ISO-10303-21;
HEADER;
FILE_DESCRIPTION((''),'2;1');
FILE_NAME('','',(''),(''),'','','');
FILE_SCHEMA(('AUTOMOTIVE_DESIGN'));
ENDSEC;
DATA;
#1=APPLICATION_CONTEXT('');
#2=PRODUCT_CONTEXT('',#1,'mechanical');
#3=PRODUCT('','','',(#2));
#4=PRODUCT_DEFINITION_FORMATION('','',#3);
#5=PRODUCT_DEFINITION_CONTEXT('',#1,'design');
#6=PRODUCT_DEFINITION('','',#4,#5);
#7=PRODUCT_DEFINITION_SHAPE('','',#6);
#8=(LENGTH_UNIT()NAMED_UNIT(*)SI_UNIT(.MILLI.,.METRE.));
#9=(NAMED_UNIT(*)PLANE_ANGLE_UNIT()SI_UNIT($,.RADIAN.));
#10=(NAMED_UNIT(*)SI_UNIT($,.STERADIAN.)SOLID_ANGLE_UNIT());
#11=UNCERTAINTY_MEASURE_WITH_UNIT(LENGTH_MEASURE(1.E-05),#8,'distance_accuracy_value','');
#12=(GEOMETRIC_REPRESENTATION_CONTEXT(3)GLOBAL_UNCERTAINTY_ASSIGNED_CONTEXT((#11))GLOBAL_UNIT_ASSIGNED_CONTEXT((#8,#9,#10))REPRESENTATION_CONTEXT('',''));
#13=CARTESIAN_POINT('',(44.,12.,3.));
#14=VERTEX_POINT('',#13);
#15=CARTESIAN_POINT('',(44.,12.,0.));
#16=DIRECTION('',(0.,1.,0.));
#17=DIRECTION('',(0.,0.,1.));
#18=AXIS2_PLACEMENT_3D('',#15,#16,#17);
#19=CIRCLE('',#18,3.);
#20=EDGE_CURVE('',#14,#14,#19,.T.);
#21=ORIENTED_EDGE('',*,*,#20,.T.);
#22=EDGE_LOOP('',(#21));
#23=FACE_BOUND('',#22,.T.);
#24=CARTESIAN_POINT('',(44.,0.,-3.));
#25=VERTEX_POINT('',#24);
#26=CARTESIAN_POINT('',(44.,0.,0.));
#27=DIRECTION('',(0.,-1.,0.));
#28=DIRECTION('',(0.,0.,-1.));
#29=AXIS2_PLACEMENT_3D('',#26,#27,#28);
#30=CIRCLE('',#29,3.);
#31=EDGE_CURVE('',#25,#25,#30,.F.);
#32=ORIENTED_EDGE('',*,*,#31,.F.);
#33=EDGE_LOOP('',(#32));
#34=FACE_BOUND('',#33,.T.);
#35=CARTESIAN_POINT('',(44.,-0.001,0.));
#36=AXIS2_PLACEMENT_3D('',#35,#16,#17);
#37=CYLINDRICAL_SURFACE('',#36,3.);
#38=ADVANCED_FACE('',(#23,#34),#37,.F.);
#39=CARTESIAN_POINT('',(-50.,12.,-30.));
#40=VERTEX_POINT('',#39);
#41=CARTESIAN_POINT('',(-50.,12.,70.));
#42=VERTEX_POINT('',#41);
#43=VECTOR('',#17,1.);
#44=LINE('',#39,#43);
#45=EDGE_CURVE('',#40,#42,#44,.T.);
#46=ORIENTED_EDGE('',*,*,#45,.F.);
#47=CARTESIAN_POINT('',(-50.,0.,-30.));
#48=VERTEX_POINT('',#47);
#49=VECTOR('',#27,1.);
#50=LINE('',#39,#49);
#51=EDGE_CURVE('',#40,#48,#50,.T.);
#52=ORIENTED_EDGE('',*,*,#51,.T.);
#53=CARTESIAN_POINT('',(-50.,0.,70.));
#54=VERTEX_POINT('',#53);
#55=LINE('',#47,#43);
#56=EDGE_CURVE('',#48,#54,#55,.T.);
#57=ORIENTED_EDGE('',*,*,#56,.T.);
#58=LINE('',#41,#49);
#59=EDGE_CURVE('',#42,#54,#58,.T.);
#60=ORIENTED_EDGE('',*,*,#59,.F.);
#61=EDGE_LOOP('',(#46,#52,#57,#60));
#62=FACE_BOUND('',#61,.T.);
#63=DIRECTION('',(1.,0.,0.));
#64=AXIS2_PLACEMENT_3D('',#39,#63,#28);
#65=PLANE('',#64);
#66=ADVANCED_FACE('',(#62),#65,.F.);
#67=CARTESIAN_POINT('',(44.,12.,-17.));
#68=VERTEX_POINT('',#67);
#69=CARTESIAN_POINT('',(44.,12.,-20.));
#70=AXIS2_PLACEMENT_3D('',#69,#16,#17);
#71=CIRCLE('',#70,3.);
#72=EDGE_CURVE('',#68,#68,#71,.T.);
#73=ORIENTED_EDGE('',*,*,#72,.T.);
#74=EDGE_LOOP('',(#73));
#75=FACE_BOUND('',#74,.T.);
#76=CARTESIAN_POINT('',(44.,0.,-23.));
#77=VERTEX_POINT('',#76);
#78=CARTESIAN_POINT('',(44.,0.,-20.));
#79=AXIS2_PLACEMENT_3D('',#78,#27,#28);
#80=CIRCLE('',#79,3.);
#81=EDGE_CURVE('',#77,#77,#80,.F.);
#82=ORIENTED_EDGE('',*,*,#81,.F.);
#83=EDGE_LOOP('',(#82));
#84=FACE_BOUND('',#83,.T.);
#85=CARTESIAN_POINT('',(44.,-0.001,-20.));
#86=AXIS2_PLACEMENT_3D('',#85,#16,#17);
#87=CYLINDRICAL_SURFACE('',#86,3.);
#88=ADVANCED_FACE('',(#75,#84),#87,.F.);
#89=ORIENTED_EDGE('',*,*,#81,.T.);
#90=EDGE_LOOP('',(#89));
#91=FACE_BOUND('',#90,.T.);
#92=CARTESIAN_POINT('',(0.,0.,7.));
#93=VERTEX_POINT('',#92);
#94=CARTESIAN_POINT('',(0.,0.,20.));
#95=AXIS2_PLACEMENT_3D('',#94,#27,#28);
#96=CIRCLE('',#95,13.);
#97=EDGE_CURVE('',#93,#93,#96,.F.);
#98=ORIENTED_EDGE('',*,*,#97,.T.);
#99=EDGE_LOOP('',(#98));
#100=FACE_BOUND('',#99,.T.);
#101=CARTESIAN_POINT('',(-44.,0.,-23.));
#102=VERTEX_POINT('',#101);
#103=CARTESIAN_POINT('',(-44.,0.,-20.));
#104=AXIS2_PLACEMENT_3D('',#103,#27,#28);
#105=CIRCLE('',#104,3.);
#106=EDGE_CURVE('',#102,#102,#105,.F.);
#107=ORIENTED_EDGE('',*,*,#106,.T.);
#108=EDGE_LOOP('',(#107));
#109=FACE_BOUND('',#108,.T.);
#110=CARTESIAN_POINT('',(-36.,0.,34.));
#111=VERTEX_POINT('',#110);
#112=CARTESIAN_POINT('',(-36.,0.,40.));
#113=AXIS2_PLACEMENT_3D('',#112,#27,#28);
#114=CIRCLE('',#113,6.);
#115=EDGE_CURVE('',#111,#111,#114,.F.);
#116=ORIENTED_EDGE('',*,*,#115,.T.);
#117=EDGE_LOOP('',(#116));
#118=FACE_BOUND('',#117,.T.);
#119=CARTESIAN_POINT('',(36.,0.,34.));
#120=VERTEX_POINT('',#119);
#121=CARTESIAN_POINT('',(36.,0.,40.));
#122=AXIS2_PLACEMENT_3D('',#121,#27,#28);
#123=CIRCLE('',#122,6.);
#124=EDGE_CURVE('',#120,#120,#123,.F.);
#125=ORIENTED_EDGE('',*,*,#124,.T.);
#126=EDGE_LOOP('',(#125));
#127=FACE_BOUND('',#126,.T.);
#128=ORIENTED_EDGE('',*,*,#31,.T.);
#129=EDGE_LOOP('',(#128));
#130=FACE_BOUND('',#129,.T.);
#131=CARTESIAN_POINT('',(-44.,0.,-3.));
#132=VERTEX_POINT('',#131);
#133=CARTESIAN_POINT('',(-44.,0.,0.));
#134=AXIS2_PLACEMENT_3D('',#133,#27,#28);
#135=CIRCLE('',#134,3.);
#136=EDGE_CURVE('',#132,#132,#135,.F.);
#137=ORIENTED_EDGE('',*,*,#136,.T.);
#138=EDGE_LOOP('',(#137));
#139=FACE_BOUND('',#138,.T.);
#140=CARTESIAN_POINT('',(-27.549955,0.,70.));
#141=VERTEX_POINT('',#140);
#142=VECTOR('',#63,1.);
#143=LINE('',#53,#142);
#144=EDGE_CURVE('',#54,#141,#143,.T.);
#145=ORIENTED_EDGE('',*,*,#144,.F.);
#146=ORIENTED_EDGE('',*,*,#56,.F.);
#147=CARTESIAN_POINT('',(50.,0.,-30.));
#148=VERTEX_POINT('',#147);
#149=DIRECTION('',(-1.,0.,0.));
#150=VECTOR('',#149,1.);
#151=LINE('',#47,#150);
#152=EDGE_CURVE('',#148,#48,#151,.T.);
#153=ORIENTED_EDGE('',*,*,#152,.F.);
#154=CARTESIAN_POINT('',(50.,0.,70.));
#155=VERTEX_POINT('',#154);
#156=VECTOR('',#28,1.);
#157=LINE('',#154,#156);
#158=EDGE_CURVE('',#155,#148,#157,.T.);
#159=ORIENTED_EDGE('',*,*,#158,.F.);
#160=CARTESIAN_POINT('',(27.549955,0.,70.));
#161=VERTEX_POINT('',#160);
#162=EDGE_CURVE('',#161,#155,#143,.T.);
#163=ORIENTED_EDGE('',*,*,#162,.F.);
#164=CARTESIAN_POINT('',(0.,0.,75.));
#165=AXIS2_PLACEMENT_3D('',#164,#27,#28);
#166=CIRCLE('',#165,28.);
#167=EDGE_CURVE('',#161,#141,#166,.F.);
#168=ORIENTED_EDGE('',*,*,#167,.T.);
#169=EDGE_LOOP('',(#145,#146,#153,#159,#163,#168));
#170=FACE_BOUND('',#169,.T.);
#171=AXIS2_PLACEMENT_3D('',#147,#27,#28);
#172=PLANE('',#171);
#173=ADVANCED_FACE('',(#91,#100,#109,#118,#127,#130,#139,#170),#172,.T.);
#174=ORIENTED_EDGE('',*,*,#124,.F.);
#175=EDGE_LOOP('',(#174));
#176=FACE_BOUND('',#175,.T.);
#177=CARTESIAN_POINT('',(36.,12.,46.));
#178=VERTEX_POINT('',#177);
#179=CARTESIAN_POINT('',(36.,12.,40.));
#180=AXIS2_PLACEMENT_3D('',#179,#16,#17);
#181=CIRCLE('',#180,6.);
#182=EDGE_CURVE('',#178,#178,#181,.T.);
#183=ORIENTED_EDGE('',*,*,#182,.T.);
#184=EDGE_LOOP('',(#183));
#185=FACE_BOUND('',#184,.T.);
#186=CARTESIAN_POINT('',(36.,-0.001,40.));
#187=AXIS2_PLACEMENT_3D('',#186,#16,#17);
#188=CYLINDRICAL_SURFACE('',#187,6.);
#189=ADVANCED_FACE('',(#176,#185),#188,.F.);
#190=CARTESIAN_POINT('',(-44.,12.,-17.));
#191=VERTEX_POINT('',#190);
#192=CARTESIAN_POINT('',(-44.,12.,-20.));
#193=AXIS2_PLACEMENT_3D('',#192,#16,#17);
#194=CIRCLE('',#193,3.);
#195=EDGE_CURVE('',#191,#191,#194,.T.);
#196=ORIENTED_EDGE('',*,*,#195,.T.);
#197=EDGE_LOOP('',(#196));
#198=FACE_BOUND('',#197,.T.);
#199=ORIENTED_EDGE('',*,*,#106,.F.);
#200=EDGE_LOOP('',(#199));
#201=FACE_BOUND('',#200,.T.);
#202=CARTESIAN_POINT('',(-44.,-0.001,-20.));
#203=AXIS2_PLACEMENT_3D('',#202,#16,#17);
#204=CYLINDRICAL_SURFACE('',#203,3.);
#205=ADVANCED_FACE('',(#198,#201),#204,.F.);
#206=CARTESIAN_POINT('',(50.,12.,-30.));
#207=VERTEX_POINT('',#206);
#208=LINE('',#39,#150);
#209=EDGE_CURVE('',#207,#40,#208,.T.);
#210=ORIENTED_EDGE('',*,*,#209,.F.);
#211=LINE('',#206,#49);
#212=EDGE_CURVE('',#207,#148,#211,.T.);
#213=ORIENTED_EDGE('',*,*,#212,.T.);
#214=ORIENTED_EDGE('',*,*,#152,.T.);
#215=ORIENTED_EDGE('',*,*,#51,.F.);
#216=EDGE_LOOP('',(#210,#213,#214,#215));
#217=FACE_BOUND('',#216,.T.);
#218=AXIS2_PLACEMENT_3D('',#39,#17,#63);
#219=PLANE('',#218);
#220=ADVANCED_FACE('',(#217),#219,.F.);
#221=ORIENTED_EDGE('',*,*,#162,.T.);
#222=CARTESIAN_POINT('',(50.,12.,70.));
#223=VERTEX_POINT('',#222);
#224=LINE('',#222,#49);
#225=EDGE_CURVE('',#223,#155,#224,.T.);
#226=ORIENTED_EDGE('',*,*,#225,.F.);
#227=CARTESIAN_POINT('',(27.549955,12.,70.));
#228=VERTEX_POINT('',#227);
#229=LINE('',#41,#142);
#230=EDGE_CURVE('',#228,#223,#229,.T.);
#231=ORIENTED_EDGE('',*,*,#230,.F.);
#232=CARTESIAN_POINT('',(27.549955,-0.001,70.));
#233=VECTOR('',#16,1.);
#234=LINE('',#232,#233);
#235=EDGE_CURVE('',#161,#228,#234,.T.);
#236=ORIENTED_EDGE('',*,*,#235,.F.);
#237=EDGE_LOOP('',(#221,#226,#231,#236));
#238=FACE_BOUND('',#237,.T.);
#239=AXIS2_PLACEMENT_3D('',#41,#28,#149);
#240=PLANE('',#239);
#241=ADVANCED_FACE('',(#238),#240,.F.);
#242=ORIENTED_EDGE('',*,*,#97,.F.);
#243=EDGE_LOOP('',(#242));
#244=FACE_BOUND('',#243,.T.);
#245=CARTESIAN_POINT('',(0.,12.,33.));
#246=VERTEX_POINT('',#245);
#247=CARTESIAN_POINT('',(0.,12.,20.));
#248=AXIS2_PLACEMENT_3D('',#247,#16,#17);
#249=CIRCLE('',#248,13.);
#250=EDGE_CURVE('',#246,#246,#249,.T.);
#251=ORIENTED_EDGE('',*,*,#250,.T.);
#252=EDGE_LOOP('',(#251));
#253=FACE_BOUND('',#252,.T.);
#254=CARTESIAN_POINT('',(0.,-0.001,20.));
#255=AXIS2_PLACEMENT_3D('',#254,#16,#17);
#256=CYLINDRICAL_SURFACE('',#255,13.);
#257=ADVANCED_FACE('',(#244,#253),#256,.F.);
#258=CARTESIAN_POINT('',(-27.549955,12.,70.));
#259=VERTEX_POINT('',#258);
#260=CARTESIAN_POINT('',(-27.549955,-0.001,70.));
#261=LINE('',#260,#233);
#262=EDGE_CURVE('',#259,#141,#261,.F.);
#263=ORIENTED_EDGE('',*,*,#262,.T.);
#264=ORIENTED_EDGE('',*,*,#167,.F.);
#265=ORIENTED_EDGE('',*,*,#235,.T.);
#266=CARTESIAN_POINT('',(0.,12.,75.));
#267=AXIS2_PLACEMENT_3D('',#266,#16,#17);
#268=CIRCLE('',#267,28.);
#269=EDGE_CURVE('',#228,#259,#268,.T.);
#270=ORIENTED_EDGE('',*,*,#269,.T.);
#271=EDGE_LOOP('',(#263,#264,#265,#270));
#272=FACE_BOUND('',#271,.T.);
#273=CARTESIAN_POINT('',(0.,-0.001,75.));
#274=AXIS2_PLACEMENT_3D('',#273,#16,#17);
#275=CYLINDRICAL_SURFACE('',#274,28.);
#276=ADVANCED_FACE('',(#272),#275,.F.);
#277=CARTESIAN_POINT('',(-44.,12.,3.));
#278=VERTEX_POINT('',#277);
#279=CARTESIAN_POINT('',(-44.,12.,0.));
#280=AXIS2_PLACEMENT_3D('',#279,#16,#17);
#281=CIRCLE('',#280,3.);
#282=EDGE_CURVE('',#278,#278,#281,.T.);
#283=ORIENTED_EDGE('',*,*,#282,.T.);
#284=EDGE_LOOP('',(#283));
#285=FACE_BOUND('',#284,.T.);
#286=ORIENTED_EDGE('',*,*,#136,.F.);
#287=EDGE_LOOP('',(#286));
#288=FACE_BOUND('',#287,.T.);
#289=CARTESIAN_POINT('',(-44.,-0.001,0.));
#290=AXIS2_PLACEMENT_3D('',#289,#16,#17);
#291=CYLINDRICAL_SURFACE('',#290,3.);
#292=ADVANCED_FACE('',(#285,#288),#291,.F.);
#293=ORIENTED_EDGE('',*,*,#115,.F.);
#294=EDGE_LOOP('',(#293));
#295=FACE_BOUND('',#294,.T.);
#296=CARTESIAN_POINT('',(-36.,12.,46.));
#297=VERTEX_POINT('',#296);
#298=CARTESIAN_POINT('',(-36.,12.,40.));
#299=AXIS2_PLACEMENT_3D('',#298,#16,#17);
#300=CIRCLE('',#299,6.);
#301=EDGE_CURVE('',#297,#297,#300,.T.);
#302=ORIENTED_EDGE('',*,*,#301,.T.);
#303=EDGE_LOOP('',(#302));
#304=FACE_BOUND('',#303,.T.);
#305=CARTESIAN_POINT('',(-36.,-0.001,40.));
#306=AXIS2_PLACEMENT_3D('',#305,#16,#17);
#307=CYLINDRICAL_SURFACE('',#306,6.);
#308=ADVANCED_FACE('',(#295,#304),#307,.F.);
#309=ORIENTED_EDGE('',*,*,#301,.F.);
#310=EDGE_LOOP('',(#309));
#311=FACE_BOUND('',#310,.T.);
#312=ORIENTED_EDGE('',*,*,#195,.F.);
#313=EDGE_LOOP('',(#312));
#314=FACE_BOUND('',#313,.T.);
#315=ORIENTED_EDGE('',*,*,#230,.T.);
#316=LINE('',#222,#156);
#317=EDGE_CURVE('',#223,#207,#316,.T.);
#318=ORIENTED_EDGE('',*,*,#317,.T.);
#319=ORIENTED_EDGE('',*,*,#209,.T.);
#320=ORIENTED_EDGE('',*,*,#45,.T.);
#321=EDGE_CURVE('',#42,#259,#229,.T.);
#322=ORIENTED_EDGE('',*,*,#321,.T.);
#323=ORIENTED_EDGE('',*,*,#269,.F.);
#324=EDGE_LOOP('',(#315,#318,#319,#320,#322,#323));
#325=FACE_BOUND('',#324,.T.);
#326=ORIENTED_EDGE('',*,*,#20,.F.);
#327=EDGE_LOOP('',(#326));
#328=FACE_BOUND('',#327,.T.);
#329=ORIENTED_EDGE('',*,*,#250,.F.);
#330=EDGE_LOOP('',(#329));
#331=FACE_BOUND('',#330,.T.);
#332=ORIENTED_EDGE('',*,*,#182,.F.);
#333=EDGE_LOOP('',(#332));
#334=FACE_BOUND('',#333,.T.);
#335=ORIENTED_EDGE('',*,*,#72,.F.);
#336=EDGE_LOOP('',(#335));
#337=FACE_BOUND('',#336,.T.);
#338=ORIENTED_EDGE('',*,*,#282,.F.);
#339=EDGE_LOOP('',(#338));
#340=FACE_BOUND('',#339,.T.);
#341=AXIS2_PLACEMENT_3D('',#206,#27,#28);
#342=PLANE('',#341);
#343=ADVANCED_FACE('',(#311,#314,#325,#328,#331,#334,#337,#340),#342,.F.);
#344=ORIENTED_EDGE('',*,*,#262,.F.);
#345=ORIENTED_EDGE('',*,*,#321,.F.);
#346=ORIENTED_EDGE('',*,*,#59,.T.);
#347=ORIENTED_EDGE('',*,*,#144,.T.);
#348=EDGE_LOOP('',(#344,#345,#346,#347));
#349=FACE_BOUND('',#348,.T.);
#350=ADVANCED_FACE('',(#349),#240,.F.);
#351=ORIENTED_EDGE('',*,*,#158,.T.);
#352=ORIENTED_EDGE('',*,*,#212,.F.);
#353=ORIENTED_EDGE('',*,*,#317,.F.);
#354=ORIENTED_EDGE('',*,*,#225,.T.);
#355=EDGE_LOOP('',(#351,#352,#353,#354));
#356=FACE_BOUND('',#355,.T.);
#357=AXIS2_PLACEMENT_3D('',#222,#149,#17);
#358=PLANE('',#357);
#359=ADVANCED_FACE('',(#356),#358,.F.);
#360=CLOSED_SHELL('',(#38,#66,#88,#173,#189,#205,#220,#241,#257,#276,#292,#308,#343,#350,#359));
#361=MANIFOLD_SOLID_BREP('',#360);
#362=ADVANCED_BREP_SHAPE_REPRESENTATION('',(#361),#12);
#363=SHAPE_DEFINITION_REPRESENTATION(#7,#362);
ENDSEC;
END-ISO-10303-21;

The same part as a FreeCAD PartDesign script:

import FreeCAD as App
import Part
import Sketcher
from FreeCAD import Vector
Q = App.Units.Quantity

doc = App.newDocument("Part")
body = doc.addObject("PartDesign::Body", "Body")

sketch1 = doc.addObject("Sketcher::SketchObject", "Sketch")
body.addObject(sketch1)
sketch1.AttachmentSupport = (doc.XZ_Plane, [""])
sketch1.MapMode = "FlatFace"
sketch1.addGeometry([
    Part.LineSegment(Vector(-50, -30, 0), Vector(-50, 70, 0)),
    Part.LineSegment(Vector(-50, 70, 0), Vector(50, 70, 0)),
    Part.LineSegment(Vector(50, 70, 0), Vector(50, -30, 0)),
    Part.LineSegment(Vector(50, -30, 0), Vector(-50, -30, 0)),
], False)
sketch1.addConstraint([
    Sketcher.Constraint("Coincident", 0, 2, 1, 1),
    Sketcher.Constraint("Coincident", 1, 2, 2, 1),
    Sketcher.Constraint("Coincident", 2, 2, 3, 1),
    Sketcher.Constraint("Coincident", 3, 2, 0, 1),
    Sketcher.Constraint("Vertical", 0),
    Sketcher.Constraint("Horizontal", 1),
    Sketcher.Constraint("Vertical", 2),
    Sketcher.Constraint("Horizontal", 3),
    Sketcher.Constraint("Equal", 3, 0),
    Sketcher.Constraint("DistanceX", 1, 1, 1, 2, Q("100 mm")),
    Sketcher.Constraint("DistanceX", 0, 2, -1, 1, Q("50 mm")),
    Sketcher.Constraint("DistanceY", -1, 1, 0, 2, Q("70 mm")),
])
pad1 = doc.addObject("PartDesign::Pad", "Pad")
body.addObject(pad1)
pad1.Profile = sketch1
pad1.Length = 12
pad1.Reversed = True

sketch2 = doc.addObject("Sketcher::SketchObject", "Sketch001")
body.addObject(sketch2)
sketch2.AttachmentSupport = (doc.XZ_Plane, [""])
sketch2.MapMode = "FlatFace"
sketch2.AttachmentOffset = App.Placement(Vector(0, 0, -12), App.Rotation())
sketch2.addGeometry(Part.Circle(Vector(-44, -20, 0), Vector(0, 0, 1), 3), False)
sketch2.addConstraint([
    Sketcher.Constraint("Diameter", 0, Q("6 mm")),
    Sketcher.Constraint("DistanceX", 0, 3, -1, 1, Q("44 mm")),
    Sketcher.Constraint("DistanceY", 0, 3, -1, 1, Q("20 mm")),
])
pocket1 = doc.addObject("PartDesign::Pocket", "Pocket")
body.addObject(pocket1)
pocket1.Profile = sketch2
pocket1.Type = "UpToFirst"
pocket1.Reversed = True

sketch3 = doc.addObject("Sketcher::SketchObject", "Sketch002")
body.addObject(sketch3)
sketch3.AttachmentSupport = (doc.XZ_Plane, [""])
sketch3.MapMode = "FlatFace"
sketch3.AttachmentOffset = App.Placement(Vector(0, 0, -12), App.Rotation())
sketch3.addGeometry(Part.Circle(Vector(-44, 0, 0), Vector(0, 0, 1), 3), False)
sketch3.addConstraint([
    Sketcher.Constraint("PointOnObject", 0, 3, -1),
    Sketcher.Constraint("Diameter", 0, Q("6 mm")),
    Sketcher.Constraint("DistanceX", 0, 3, -1, 1, Q("44 mm")),
])
pocket2 = doc.addObject("PartDesign::Pocket", "Pocket001")
body.addObject(pocket2)
pocket2.Profile = sketch3
pocket2.Type = "UpToFirst"
pocket2.Reversed = True

sketch4 = doc.addObject("Sketcher::SketchObject", "Sketch003")
body.addObject(sketch4)
sketch4.AttachmentSupport = (doc.XZ_Plane, [""])
sketch4.MapMode = "FlatFace"
sketch4.AttachmentOffset = App.Placement(Vector(0, 0, -12), App.Rotation())
sketch4.addGeometry(Part.Circle(Vector(44, -20, 0), Vector(0, 0, 1), 3), False)
sketch4.addConstraint([
    Sketcher.Constraint("Diameter", 0, Q("6 mm")),
    Sketcher.Constraint("DistanceX", -1, 1, 0, 3, Q("44 mm")),
    Sketcher.Constraint("DistanceY", 0, 3, -1, 1, Q("20 mm")),
])
pocket3 = doc.addObject("PartDesign::Pocket", "Pocket002")
body.addObject(pocket3)
pocket3.Profile = sketch4
pocket3.Type = "UpToFirst"
pocket3.Reversed = True

sketch5 = doc.addObject("Sketcher::SketchObject", "Sketch004")
body.addObject(sketch5)
sketch5.AttachmentSupport = (doc.XZ_Plane, [""])
sketch5.MapMode = "FlatFace"
sketch5.AttachmentOffset = App.Placement(Vector(0, 0, -12), App.Rotation())
sketch5.addGeometry(Part.Circle(Vector(44, 0, 0), Vector(0, 0, 1), 3), False)
sketch5.addConstraint([
    Sketcher.Constraint("PointOnObject", 0, 3, -1),
    Sketcher.Constraint("Diameter", 0, Q("6 mm")),
    Sketcher.Constraint("DistanceX", -1, 1, 0, 3, Q("44 mm")),
])
pocket4 = doc.addObject("PartDesign::Pocket", "Pocket003")
body.addObject(pocket4)
pocket4.Profile = sketch5
pocket4.Type = "UpToFirst"
pocket4.Reversed = True

sketch6 = doc.addObject("Sketcher::SketchObject", "Sketch005")
body.addObject(sketch6)
sketch6.AttachmentSupport = (doc.XZ_Plane, [""])
sketch6.MapMode = "FlatFace"
sketch6.AttachmentOffset = App.Placement(Vector(0, 0, -12), App.Rotation())
sketch6.addGeometry(Part.Circle(Vector(0, 20, 0), Vector(0, 0, 1), 13), False)
sketch6.addConstraint([
    Sketcher.Constraint("PointOnObject", 0, 3, -2),
    Sketcher.Constraint("Diameter", 0, Q("26 mm")),
    Sketcher.Constraint("DistanceY", -1, 1, 0, 3, Q("20 mm")),
])
pocket5 = doc.addObject("PartDesign::Pocket", "Pocket004")
body.addObject(pocket5)
pocket5.Profile = sketch6
pocket5.Type = "UpToFirst"
pocket5.Reversed = True

sketch7 = doc.addObject("Sketcher::SketchObject", "Sketch006")
body.addObject(sketch7)
sketch7.AttachmentSupport = (doc.XZ_Plane, [""])
sketch7.MapMode = "FlatFace"
sketch7.AttachmentOffset = App.Placement(Vector(0, 0, -12), App.Rotation())
sketch7.addGeometry(Part.Circle(Vector(-36, 40, 0), Vector(0, 0, 1), 6), False)
sketch7.addConstraint([
    Sketcher.Constraint("Diameter", 0, Q("12 mm")),
    Sketcher.Constraint("DistanceX", 0, 3, -1, 1, Q("36 mm")),
    Sketcher.Constraint("DistanceY", -1, 1, 0, 3, Q("40 mm")),
])
pocket6 = doc.addObject("PartDesign::Pocket", "Pocket005")
body.addObject(pocket6)
pocket6.Profile = sketch7
pocket6.Type = "UpToFirst"
pocket6.Reversed = True

sketch8 = doc.addObject("Sketcher::SketchObject", "Sketch007")
body.addObject(sketch8)
sketch8.AttachmentSupport = (doc.XZ_Plane, [""])
sketch8.MapMode = "FlatFace"
sketch8.AttachmentOffset = App.Placement(Vector(0, 0, -12), App.Rotation())
sketch8.addGeometry(Part.Circle(Vector(36, 40, 0), Vector(0, 0, 1), 6), False)
sketch8.addConstraint([
    Sketcher.Constraint("Diameter", 0, Q("12 mm")),
    Sketcher.Constraint("DistanceX", -1, 1, 0, 3, Q("36 mm")),
    Sketcher.Constraint("DistanceY", -1, 1, 0, 3, Q("40 mm")),
])
pocket7 = doc.addObject("PartDesign::Pocket", "Pocket006")
body.addObject(pocket7)
pocket7.Profile = sketch8
pocket7.Type = "UpToFirst"
pocket7.Reversed = True

sketch9 = doc.addObject("Sketcher::SketchObject", "Sketch008")
body.addObject(sketch9)
sketch9.AttachmentSupport = (doc.XZ_Plane, [""])
sketch9.MapMode = "FlatFace"
sketch9.AttachmentOffset = App.Placement(Vector(0, 0, -12), App.Rotation())
sketch9.addGeometry(Part.Circle(Vector(0, 75, 0), Vector(0, 0, 1), 28), False)
sketch9.addConstraint([
    Sketcher.Constraint("PointOnObject", 0, 3, -2),
    Sketcher.Constraint("Diameter", 0, Q("56 mm")),
    Sketcher.Constraint("DistanceY", -1, 1, 0, 3, Q("75 mm")),
])
pocket8 = doc.addObject("PartDesign::Pocket", "Pocket007")
body.addObject(pocket8)
pocket8.Profile = sketch9
pocket8.Length = 12
pocket8.Reversed = True

doc.recompute()
